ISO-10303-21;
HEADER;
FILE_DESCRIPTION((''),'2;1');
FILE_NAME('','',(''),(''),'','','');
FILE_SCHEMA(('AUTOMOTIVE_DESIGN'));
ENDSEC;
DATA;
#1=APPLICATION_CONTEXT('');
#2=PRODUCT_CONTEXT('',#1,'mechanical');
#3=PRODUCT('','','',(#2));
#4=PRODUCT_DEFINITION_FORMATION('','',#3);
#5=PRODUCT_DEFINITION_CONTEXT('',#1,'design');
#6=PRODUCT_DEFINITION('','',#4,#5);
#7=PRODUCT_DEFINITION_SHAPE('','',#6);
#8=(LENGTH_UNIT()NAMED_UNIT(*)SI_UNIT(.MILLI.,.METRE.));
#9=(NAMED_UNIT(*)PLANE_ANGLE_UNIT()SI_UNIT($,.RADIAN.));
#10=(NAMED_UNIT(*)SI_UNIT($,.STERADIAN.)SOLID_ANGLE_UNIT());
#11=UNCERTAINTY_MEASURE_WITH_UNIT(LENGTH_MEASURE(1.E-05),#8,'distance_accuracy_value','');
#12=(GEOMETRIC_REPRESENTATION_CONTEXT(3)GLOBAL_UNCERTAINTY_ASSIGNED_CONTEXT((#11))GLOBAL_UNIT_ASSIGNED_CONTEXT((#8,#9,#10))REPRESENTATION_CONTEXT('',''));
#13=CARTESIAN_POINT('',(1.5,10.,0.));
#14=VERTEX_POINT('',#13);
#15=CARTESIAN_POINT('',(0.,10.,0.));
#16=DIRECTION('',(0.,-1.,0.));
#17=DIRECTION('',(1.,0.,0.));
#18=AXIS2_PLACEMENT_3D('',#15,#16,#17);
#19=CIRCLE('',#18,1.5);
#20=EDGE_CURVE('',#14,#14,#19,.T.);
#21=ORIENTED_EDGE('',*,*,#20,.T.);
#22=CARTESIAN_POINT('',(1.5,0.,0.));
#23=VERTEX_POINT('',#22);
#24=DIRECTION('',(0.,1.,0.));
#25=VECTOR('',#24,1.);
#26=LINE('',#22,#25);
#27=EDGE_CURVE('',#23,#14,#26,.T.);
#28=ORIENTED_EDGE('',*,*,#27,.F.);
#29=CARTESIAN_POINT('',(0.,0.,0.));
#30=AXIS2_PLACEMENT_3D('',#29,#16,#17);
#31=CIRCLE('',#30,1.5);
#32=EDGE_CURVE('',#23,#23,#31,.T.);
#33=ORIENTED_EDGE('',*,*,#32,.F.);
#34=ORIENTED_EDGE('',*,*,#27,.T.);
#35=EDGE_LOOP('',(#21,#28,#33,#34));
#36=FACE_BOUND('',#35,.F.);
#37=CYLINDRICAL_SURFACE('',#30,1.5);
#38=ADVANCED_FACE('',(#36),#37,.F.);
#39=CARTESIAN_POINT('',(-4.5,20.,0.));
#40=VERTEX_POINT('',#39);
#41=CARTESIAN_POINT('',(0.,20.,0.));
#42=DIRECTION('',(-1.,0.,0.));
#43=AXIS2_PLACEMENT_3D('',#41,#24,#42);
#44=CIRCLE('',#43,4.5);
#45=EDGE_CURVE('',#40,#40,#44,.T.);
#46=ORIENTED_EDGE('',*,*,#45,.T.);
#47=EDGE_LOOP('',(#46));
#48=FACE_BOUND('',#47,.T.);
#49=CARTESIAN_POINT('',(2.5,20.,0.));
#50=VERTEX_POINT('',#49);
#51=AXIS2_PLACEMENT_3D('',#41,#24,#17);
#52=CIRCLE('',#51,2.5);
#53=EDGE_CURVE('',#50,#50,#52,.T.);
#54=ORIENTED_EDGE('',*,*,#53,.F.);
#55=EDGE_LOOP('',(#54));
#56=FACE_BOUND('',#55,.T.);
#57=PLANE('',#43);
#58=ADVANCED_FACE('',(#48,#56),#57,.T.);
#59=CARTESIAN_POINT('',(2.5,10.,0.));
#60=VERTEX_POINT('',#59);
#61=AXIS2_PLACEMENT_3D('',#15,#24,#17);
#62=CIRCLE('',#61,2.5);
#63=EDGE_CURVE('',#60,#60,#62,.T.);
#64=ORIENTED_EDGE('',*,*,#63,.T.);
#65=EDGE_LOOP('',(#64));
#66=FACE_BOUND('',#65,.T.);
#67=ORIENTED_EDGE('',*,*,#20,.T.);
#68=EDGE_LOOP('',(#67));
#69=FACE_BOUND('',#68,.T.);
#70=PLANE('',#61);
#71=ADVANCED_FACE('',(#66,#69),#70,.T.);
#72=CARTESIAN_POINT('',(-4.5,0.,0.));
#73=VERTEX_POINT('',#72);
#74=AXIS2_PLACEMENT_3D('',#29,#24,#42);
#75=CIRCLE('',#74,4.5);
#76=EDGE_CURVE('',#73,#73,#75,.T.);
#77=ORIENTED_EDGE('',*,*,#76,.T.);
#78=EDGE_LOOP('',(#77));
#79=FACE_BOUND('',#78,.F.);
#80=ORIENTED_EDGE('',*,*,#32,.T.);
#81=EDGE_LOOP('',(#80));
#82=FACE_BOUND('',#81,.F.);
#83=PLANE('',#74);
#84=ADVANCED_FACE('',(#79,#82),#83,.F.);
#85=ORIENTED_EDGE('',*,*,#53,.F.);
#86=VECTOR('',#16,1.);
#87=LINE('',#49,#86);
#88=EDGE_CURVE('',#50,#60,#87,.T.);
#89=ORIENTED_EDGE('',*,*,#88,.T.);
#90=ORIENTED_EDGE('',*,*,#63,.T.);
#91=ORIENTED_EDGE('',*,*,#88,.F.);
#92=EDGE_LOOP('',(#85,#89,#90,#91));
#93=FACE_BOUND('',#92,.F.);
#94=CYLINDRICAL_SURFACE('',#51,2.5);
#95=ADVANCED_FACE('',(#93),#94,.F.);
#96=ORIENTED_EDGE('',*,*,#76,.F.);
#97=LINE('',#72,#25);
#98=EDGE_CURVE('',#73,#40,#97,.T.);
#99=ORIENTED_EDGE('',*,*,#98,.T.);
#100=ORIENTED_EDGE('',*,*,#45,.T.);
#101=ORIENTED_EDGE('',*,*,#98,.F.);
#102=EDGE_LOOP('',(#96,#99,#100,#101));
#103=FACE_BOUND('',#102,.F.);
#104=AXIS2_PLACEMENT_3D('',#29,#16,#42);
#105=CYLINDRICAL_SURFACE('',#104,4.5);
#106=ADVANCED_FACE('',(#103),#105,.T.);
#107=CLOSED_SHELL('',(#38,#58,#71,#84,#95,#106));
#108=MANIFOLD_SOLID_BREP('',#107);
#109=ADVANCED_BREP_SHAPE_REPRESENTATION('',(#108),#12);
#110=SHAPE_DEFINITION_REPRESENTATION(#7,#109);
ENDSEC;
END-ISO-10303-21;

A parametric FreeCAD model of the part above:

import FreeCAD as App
import Part
import Sketcher
from FreeCAD import Vector

doc = App.newDocument("Part")
body = doc.addObject("PartDesign::Body", "Body")

# Sketch on XZ plane
sketch1 = body.newObject("Sketcher::SketchObject", "Sketch")
sketch1.AttachmentSupport = (doc.getObject("XZ_Plane"), [""])
sketch1.MapMode = "FlatFace"
sketch1.addGeometry(Part.Circle(Vector(0, 0, 0), Vector(0, 0, 1), 4.5), False)
sketch1.addConstraint(Sketcher.Constraint("Coincident", 0, 3, -1, 1))
sketch1.addConstraint(Sketcher.Constraint("Diameter", 0, 9.0))
pad1 = body.newObject("PartDesign::Pad", "Pad")
pad1.Profile = sketch1
pad1.Length = 20
pad1.Reversed = True

# Sketch on XZ plane
sketch2 = body.newObject("Sketcher::SketchObject", "Sketch001")
sketch2.AttachmentSupport = (doc.getObject("XZ_Plane"), [""])
sketch2.MapMode = "FlatFace"
sketch2.AttachmentOffset = App.Placement(Vector(0, 0, -20), App.Rotation())
sketch2.addGeometry(Part.Circle(Vector(0, 0, 0), Vector(0, 0, 1), 2.5), False)
sketch2.addConstraint(Sketcher.Constraint("Coincident", 0, 3, -1, 1))
sketch2.addConstraint(Sketcher.Constraint("Diameter", 0, 5.0))
pocket1 = body.newObject("PartDesign::Pocket", "Pocket")
pocket1.Profile = sketch2
pocket1.Length = 10
pocket1.Reversed = True

# Sketch on XZ plane
sketch3 = body.newObject("Sketcher::SketchObject", "Sketch002")
sketch3.AttachmentSupport = (doc.getObject("XZ_Plane"), [""])
sketch3.MapMode = "FlatFace"
sketch3.addGeometry(Part.Circle(Vector(0, 0, 0), Vector(0, 0, 1), 1.5), False)
sketch3.addConstraint(Sketcher.Constraint("Coincident", 0, 3, -1, 1))
sketch3.addConstraint(Sketcher.Constraint("Diameter", 0, 3.0))
pocket2 = body.newObject("PartDesign::Pocket", "Pocket001")
pocket2.Profile = sketch3
pocket2.Length = 10

doc.recompute()
